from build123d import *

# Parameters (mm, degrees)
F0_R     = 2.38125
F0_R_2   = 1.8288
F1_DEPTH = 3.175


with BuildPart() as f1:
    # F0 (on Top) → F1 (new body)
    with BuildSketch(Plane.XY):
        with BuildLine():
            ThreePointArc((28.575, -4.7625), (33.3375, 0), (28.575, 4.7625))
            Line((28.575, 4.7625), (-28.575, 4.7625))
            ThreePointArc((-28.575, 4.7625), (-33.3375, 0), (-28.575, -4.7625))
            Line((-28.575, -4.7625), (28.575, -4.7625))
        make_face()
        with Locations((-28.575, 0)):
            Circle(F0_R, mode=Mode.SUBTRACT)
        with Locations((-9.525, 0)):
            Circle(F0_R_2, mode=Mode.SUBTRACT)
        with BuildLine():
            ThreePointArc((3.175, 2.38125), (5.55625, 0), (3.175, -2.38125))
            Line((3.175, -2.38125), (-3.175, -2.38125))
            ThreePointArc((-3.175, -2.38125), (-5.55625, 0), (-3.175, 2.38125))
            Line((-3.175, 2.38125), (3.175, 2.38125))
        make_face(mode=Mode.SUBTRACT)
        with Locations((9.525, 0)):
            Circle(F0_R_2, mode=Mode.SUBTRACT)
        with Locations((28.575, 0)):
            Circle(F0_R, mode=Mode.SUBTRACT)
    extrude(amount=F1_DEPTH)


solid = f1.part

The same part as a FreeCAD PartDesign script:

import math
import FreeCAD as App
import Part
import Sketcher
Q = App.Units.Quantity

doc = App.newDocument("Part")
params = doc.addObject("Spreadsheet::Sheet", "Params")
for row, (alias, value) in enumerate([
    ("sketch1_diameter", "0.1875 in"),
    ("sketch1_diameter2", "0.144 in"),
    ("sketch1_radius", "0.1875 in"),
    ("sketch1_width", "2.25 in"),
    ("pad1_length", "0.125 in"),
], start=1):
    params.set(f"A{row}", alias)
    params.set(f"B{row}", "=" + value)
    params.setAlias(f"B{row}", alias)

body = doc.addObject("PartDesign::Body", "Body")

# Sketch on XY plane
sketch1 = body.newObject("Sketcher::SketchObject", "Sketch")
sketch1.AttachmentSupport = (doc.getObject("XY_Plane"), [""])
sketch1.MapMode = "FlatFace"
sketch1.addGeometry([
    Part.ArcOfCircle(Part.Circle(App.Vector(28.575, 0, 0), App.Vector(0, 0, 1), 4.7625), math.radians(-90), math.radians(90)),  # 0
    Part.LineSegment(App.Vector(28.575, 4.7625, 0), App.Vector(-28.575, 4.7625, 0)),  # 1
    Part.ArcOfCircle(Part.Circle(App.Vector(-28.575, 0, 0), App.Vector(0, 0, 1), 4.7625), math.radians(90), math.radians(270)),  # 2
    Part.LineSegment(App.Vector(-28.575, -4.7625, 0), App.Vector(28.575, -4.7625, 0)),  # 3
    Part.Circle(App.Vector(-28.575, 0, 0), App.Vector(0, 0, 1), 2.38125),  # 4
    Part.Circle(App.Vector(-9.525, 0, 0), App.Vector(0, 0, 1), 1.8288),  # 5
    Part.LineSegment(App.Vector(-3.175, 2.38125, 0), App.Vector(3.175, 2.38125, 0)),  # 6
    Part.ArcOfCircle(Part.Circle(App.Vector(3.175, 0, 0), App.Vector(0, 0, 1), 2.38125), math.radians(-90), math.radians(90)),  # 7
    Part.LineSegment(App.Vector(3.175, -2.38125, 0), App.Vector(-3.175, -2.38125, 0)),  # 8
    Part.ArcOfCircle(Part.Circle(App.Vector(-3.175, 0, 0), App.Vector(0, 0, 1), 2.38125), math.radians(90), math.radians(270)),  # 9
    Part.Circle(App.Vector(9.525, 0, 0), App.Vector(0, 0, 1), 1.8288),  # 10
    Part.Circle(App.Vector(28.575, 0, 0), App.Vector(0, 0, 1), 2.38125),  # 11
], False)
sketch1.addConstraint([
    Sketcher.Constraint("Tangent", 0, 2, 1, 1),
    Sketcher.Constraint("Tangent", 1, 2, 2, 1),
    Sketcher.Constraint("Tangent", 2, 2, 3, 1),
    Sketcher.Constraint("Tangent", 3, 2, 0, 1),
    Sketcher.Constraint("Tangent", 6, 2, 7, 2),
    Sketcher.Constraint("Tangent", 7, 1, 8, 1),
    Sketcher.Constraint("Tangent", 8, 2, 9, 2),
    Sketcher.Constraint("Tangent", 9, 1, 6, 1),
    Sketcher.Constraint("Horizontal", 1),
    Sketcher.Constraint("Horizontal", 3),
    Sketcher.Constraint("Horizontal", 6),
    Sketcher.Constraint("Horizontal", 8),
    Sketcher.Constraint("Coincident", 4, 3, 2, 3),
    Sketcher.Constraint("Coincident", 11, 3, 0, 3),
    Sketcher.Constraint("Equal", 4, 7),
    Sketcher.Constraint("Equal", 5, 10),
    Sketcher.Constraint("Equal", 9, 11),
    Sketcher.Constraint("Symmetric", 0, 3, 2, 3, -1, 1),
    Sketcher.Constraint("Symmetric", 7, 3, 9, 3, -1, 1),
    Sketcher.Constraint("Symmetric", 5, 3, 10, 3, -1, 1),
    Sketcher.Constraint("PointOnObject", 5, 3, -1),
    Sketcher.Constraint("Diameter", 4, Q("0.1875 in")),
    Sketcher.Constraint("Diameter", 5, Q("0.144 in")),
    Sketcher.Constraint("Radius", 0, Q("0.1875 in")),
    Sketcher.Constraint("DistanceX", 7, 3, 0, 3, Q("1 in")),
    Sketcher.Constraint("DistanceX", 1, 2, 1, 1, Q("2.25 in")),
    Sketcher.Constraint("DistanceX", 5, 3, 0, 3, Q("1.5 in")),
])
sketch1.setExpression("Constraints[21]", "Params.sketch1_diameter")
sketch1.setExpression("Constraints[22]", "Params.sketch1_diameter2")
sketch1.setExpression("Constraints[23]", "Params.sketch1_radius")
sketch1.setExpression("Constraints[25]", "Params.sketch1_width")
pad1 = body.newObject("PartDesign::Pad", "Pad")
pad1.Profile = sketch1
pad1.setExpression("Length", "Params.pad1_length")

doc.recompute()
